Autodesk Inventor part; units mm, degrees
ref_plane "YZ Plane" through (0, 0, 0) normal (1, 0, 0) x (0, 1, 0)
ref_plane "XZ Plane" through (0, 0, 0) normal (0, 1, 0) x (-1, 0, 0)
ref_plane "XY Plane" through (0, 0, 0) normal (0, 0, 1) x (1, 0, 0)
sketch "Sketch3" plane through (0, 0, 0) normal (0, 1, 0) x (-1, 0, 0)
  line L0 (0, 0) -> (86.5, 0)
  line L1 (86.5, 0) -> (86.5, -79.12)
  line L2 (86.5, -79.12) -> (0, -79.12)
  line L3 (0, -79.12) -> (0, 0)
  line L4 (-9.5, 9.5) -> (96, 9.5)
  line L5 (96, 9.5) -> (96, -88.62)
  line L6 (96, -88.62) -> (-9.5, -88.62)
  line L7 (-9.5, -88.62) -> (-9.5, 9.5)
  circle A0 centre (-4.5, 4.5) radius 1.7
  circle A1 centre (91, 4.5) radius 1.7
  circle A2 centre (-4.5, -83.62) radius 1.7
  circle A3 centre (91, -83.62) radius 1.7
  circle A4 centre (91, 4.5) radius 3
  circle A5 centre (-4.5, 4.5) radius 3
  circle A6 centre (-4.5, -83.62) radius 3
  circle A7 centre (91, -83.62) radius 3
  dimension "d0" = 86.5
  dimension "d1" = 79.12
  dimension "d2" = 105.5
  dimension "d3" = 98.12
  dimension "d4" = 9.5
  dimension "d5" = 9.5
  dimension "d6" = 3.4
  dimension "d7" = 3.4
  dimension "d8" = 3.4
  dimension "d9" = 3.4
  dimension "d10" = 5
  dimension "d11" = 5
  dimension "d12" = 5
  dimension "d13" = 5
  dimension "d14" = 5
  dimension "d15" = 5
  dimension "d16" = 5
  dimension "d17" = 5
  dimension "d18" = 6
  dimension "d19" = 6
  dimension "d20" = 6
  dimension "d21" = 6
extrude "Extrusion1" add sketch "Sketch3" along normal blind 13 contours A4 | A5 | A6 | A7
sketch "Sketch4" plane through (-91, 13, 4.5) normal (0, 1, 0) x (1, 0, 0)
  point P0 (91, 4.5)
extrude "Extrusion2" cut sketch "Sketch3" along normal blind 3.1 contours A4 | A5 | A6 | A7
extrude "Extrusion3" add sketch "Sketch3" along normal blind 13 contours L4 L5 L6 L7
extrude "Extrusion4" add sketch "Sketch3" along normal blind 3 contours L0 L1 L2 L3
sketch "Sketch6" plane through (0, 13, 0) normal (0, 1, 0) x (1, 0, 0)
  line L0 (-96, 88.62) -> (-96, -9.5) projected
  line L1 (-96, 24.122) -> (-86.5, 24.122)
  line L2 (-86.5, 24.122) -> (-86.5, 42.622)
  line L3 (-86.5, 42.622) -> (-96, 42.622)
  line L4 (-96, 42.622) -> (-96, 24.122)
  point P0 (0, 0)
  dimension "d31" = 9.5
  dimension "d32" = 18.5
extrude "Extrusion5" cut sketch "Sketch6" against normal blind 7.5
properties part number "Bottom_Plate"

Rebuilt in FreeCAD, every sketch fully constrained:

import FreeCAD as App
import Part
import Sketcher
from FreeCAD import Vector
Q = App.Units.Quantity


def add_polygon(sketch, points):
    """Adds a closed chain of lines whose ends are joined by coincident constraints."""
    first, n = sketch.GeometryCount, len(points)
    for a, b in zip(points, points[1:] + points[:1]):
        sketch.addGeometry(Part.LineSegment(App.Vector(*a, 0), App.Vector(*b, 0)), False)
    for i in range(n):
        sketch.addConstraint(Sketcher.Constraint("Coincident", first + i, 2, first + (i + 1) % n, 1))

doc = App.newDocument("Part")
body = doc.addObject("PartDesign::Body", "Body")
body.AllowCompound = True

# Sketch on XZ plane
sketch1 = body.newObject("Sketcher::SketchObject", "Sketch")
sketch1.AttachmentSupport = (doc.getObject("XZ_Plane"), [""])
sketch1.MapMode = "FlatFace"
sketch1.addGeometry(Part.Circle(Vector(-91, 4.5, 0), Vector(0, 0, 1), 3), False)
sketch1.addGeometry(Part.Circle(Vector(-91, 4.5, 0), Vector(0, 0, 1), 1.7), False)
sketch1.addGeometry(Part.Circle(Vector(4.5, 4.5, 0), Vector(0, 0, 1), 3), False)
sketch1.addGeometry(Part.Circle(Vector(4.5, 4.5, 0), Vector(0, 0, 1), 1.7), False)
sketch1.addGeometry(Part.Circle(Vector(4.5, -83.6, 0), Vector(0, 0, 1), 3), False)
sketch1.addGeometry(Part.Circle(Vector(4.5, -83.6, 0), Vector(0, 0, 1), 1.7), False)
sketch1.addGeometry(Part.Circle(Vector(-91, -83.6, 0), Vector(0, 0, 1), 3), False)
sketch1.addGeometry(Part.Circle(Vector(-91, -83.6, 0), Vector(0, 0, 1), 1.7), False)
sketch1.addConstraint(Sketcher.Constraint("Coincident", 1, 3, 0, 3))
sketch1.addConstraint(Sketcher.Constraint("Coincident", 3, 3, 2, 3))
sketch1.addConstraint(Sketcher.Constraint("Coincident", 5, 3, 4, 3))
sketch1.addConstraint(Sketcher.Constraint("Coincident", 7, 3, 6, 3))
sketch1.addConstraint(Sketcher.Constraint("Equal", 0, 2))
sketch1.addConstraint(Sketcher.Constraint("Equal", 1, 3))
sketch1.addConstraint(Sketcher.Constraint("Equal", 2, 4))
sketch1.addConstraint(Sketcher.Constraint("Equal", 3, 5))
sketch1.addConstraint(Sketcher.Constraint("Equal", 4, 6))
sketch1.addConstraint(Sketcher.Constraint("Equal", 5, 7))
sketch1.addConstraint(Sketcher.Constraint("Horizontal", 1, 3, 2, 3))
sketch1.addConstraint(Sketcher.Constraint("Horizontal", 5, 3, 6, 3))
sketch1.addConstraint(Sketcher.Constraint("Vertical", 3, 3, 4, 3))
sketch1.addConstraint(Sketcher.Constraint("Vertical", 1, 3, 6, 3))
sketch1.addConstraint(Sketcher.Constraint("Diameter", 0, Q("6 mm")))
sketch1.addConstraint(Sketcher.Constraint("Diameter", 1, Q("3.4 mm")))
sketch1.addConstraint(Sketcher.Constraint("DistanceX", 0, 3, -1, 1, Q("91 mm")))
sketch1.addConstraint(Sketcher.Constraint("DistanceY", -1, 1, 0, 3, Q("4.5 mm")))
sketch1.addConstraint(Sketcher.Constraint("DistanceX", -1, 1, 2, 3, Q("4.5 mm")))
sketch1.addConstraint(Sketcher.Constraint("DistanceY", 4, 3, -1, 1, Q("83.62 mm")))
pad1 = body.newObject("PartDesign::Pad", "Pad")
pad1.Profile = sketch1
pad1.Length = 13
pad1.Reversed = True

# Sketch on XZ plane
sketch2 = body.newObject("Sketcher::SketchObject", "Sketch001")
sketch2.AttachmentSupport = (doc.getObject("XZ_Plane"), [""])
sketch2.MapMode = "FlatFace"
sketch2.addGeometry(Part.Circle(Vector(-91, 4.5, 0), Vector(0, 0, 1), 3), False)
sketch2.addGeometry(Part.Circle(Vector(-91, 4.5, 0), Vector(0, 0, 1), 1.7), False)
sketch2.addGeometry(Part.Circle(Vector(4.5, 4.5, 0), Vector(0, 0, 1), 3), False)
sketch2.addGeometry(Part.Circle(Vector(4.5, 4.5, 0), Vector(0, 0, 1), 1.7), False)
sketch2.addGeometry(Part.Circle(Vector(4.5, -83.6, 0), Vector(0, 0, 1), 3), False)
sketch2.addGeometry(Part.Circle(Vector(4.5, -83.6, 0), Vector(0, 0, 1), 1.7), False)
sketch2.addGeometry(Part.Circle(Vector(-91, -83.6, 0), Vector(0, 0, 1), 3), False)
sketch2.addGeometry(Part.Circle(Vector(-91, -83.6, 0), Vector(0, 0, 1), 1.7), False)
sketch2.addConstraint(Sketcher.Constraint("Coincident", 1, 3, 0, 3))
sketch2.addConstraint(Sketcher.Constraint("Coincident", 3, 3, 2, 3))
sketch2.addConstraint(Sketcher.Constraint("Coincident", 5, 3, 4, 3))
sketch2.addConstraint(Sketcher.Constraint("Coincident", 7, 3, 6, 3))
sketch2.addConstraint(Sketcher.Constraint("Equal", 0, 2))
sketch2.addConstraint(Sketcher.Constraint("Equal", 1, 3))
sketch2.addConstraint(Sketcher.Constraint("Equal", 2, 4))
sketch2.addConstraint(Sketcher.Constraint("Equal", 3, 5))
sketch2.addConstraint(Sketcher.Constraint("Equal", 4, 6))
sketch2.addConstraint(Sketcher.Constraint("Equal", 5, 7))
sketch2.addConstraint(Sketcher.Constraint("Horizontal", 1, 3, 2, 3))
sketch2.addConstraint(Sketcher.Constraint("Horizontal", 5, 3, 6, 3))
sketch2.addConstraint(Sketcher.Constraint("Vertical", 3, 3, 4, 3))
sketch2.addConstraint(Sketcher.Constraint("Vertical", 1, 3, 6, 3))
sketch2.addConstraint(Sketcher.Constraint("Diameter", 0, Q("6 mm")))
sketch2.addConstraint(Sketcher.Constraint("Diameter", 1, Q("3.4 mm")))
sketch2.addConstraint(Sketcher.Constraint("DistanceX", 0, 3, -1, 1, Q("91 mm")))
sketch2.addConstraint(Sketcher.Constraint("DistanceY", -1, 1, 0, 3, Q("4.5 mm")))
sketch2.addConstraint(Sketcher.Constraint("DistanceX", -1, 1, 2, 3, Q("4.5 mm")))
sketch2.addConstraint(Sketcher.Constraint("DistanceY", 4, 3, -1, 1, Q("83.62 mm")))
pocket1 = body.newObject("PartDesign::Pocket", "Pocket")
pocket1.Profile = sketch2
pocket1.Length = 3.1

# Sketch on XZ plane
sketch3 = body.newObject("Sketcher::SketchObject", "Sketch002")
sketch3.AttachmentSupport = (doc.getObject("XZ_Plane"), [""])
sketch3.MapMode = "FlatFace"
add_polygon(sketch3, [(-96, 9.5), (9.5, 9.5), (9.5, -88.6), (-96, -88.6)])  # lines 0-3
sketch3.addGeometry(Part.Circle(Vector(4.5, -83.6, 0), Vector(0, 0, 1), 3), False)  # 4
sketch3.addGeometry(Part.Circle(Vector(-91, -83.6, 0), Vector(0, 0, 1), 3), False)  # 5
sketch3.addGeometry(Part.Circle(Vector(4.5, 4.5, 0), Vector(0, 0, 1), 3), False)  # 6
add_polygon(sketch3, [(0, -79.1), (0, 0), (-86.5, 0), (-86.5, -79.1)])  # lines 7-10
sketch3.addGeometry(Part.Circle(Vector(-91, 4.5, 0), Vector(0, 0, 1), 3), False)  # 11
sketch3.addConstraint(Sketcher.Constraint("Horizontal", 0))
sketch3.addConstraint(Sketcher.Constraint("Vertical", 1))
sketch3.addConstraint(Sketcher.Constraint("Horizontal", 2))
sketch3.addConstraint(Sketcher.Constraint("Vertical", 3))
sketch3.addConstraint(Sketcher.Constraint("Vertical", 7))
sketch3.addConstraint(Sketcher.Constraint("Horizontal", 8))
sketch3.addConstraint(Sketcher.Constraint("Vertical", 9))
sketch3.addConstraint(Sketcher.Constraint("Horizontal", 10))
sketch3.addConstraint(Sketcher.Constraint("Coincident", 7, 2, -1, 1))
sketch3.addConstraint(Sketcher.Constraint("Equal", 4, 5))
sketch3.addConstraint(Sketcher.Constraint("Equal", 5, 6))
sketch3.addConstraint(Sketcher.Constraint("Equal", 6, 11))
sketch3.addConstraint(Sketcher.Constraint("Horizontal", 4, 3, 5, 3))
sketch3.addConstraint(Sketcher.Constraint("Horizontal", 6, 3, 11, 3))
sketch3.addConstraint(Sketcher.Constraint("Vertical", 4, 3, 6, 3))
sketch3.addConstraint(Sketcher.Constraint("Vertical", 5, 3, 11, 3))
sketch3.addConstraint(Sketcher.Constraint("Diameter", 4, Q("6 mm")))
sketch3.addConstraint(Sketcher.Constraint("DistanceX", 0, 1, 0, 2, Q("105.5 mm")))
sketch3.addConstraint(Sketcher.Constraint("DistanceX", 8, 2, 8, 1, Q("86.5 mm")))
sketch3.addConstraint(Sketcher.Constraint("DistanceX", 6, 3, 0, 2, Q("5 mm")))
sketch3.addConstraint(Sketcher.Constraint("DistanceY", 6, 3, 0, 2, Q("5 mm")))
sketch3.addConstraint(Sketcher.Constraint("DistanceY", 1, 2, 4, 3, Q("5 mm")))
sketch3.addConstraint(Sketcher.Constraint("DistanceX", 2, 2, 5, 3, Q("5 mm")))
sketch3.addConstraint(Sketcher.Constraint("DistanceY", 1, 2, 1, 1, Q("98.12 mm")))
sketch3.addConstraint(Sketcher.Constraint("DistanceY", 7, 1, 7, 2, Q("79.12 mm")))
sketch3.addConstraint(Sketcher.Constraint("DistanceX", -1, 1, 0, 2, Q("9.5 mm")))
sketch3.addConstraint(Sketcher.Constraint("DistanceY", -1, 1, 0, 2, Q("9.5 mm")))
pad2 = body.newObject("PartDesign::Pad", "Pad001")
pad2.Profile = sketch3
pad2.Length = 13
pad2.Reversed = True

# Sketch on XZ plane
sketch4 = body.newObject("Sketcher::SketchObject", "Sketch003")
sketch4.AttachmentSupport = (doc.getObject("XZ_Plane"), [""])
sketch4.MapMode = "FlatFace"
add_polygon(sketch4, [(-86, 0), (0, 0), (0, -79), (-86, -79)])  # lines 0-3
sketch4.addConstraint(Sketcher.Constraint("Horizontal", 0))
sketch4.addConstraint(Sketcher.Constraint("Vertical", 1))
sketch4.addConstraint(Sketcher.Constraint("Horizontal", 2))
sketch4.addConstraint(Sketcher.Constraint("Vertical", 3))
sketch4.addConstraint(Sketcher.Constraint("Coincident", 0, 2, -1, 1))
sketch4.addConstraint(Sketcher.Constraint("DistanceX", 0, 1, 0, 2, Q("86.5 mm")))
sketch4.addConstraint(Sketcher.Constraint("DistanceY", 1, 2, 1, 1, Q("79.12 mm")))
pad3 = body.newObject("PartDesign::Pad", "Pad002")
pad3.Profile = sketch4
pad3.Length = 3
pad3.Reversed = True

# Sketch on XZ plane
sketch5 = body.newObject("Sketcher::SketchObject", "Sketch004")
sketch5.AttachmentSupport = (doc.getObject("XZ_Plane"), [""])
sketch5.MapMode = "FlatFace"
sketch5.AttachmentOffset = App.Placement(Vector(0, 0, -13), App.Rotation())
add_polygon(sketch5, [(-86, -43), (-96, -43), (-96, -24), (-86, -24)])  # lines 0-3
sketch5.addConstraint(Sketcher.Constraint("Horizontal", 0))
sketch5.addConstraint(Sketcher.Constraint("Vertical", 1))
sketch5.addConstraint(Sketcher.Constraint("Horizontal", 2))
sketch5.addConstraint(Sketcher.Constraint("Vertical", 3))
sketch5.addConstraint(Sketcher.Constraint("DistanceX", 0, 2, 0, 1, Q("9.5 mm")))
sketch5.addConstraint(Sketcher.Constraint("DistanceY", 1, 1, 1, 2, Q("18.5 mm")))
sketch5.addConstraint(Sketcher.Constraint("DistanceX", 0, 2, -1, 1, Q("96 mm")))
sketch5.addConstraint(Sketcher.Constraint("DistanceY", 0, 2, -1, 1, Q("42.622 mm")))
pocket2 = body.newObject("PartDesign::Pocket", "Pocket001")
pocket2.Profile = sketch5
pocket2.Length = 7.5
pocket2.Reversed = True

doc.recompute()
